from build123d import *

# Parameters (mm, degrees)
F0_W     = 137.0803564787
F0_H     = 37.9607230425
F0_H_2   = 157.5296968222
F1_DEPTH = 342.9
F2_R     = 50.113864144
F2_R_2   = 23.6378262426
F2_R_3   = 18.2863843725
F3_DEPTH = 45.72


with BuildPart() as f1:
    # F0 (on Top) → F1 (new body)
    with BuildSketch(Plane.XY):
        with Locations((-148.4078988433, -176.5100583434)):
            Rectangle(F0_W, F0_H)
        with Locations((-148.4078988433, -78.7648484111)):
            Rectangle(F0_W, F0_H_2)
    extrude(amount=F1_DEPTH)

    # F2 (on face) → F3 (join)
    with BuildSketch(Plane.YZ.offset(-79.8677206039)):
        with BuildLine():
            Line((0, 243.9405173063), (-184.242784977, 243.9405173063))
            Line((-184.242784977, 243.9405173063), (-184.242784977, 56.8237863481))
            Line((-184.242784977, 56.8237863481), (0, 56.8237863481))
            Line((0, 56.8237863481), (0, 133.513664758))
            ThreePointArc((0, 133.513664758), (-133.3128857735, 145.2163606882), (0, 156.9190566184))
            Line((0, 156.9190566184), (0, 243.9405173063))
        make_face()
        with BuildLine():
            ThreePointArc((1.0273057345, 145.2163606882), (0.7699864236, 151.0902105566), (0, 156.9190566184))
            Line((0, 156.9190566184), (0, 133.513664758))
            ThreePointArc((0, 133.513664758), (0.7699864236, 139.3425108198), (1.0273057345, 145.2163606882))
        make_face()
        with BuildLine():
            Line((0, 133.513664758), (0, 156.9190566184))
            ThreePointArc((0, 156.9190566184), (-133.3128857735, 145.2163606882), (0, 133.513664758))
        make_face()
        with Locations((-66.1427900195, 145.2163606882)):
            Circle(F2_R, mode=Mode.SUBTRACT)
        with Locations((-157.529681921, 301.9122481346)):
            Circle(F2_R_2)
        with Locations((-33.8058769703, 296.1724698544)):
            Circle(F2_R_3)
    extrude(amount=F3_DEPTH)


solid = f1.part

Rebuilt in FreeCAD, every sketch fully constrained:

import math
import FreeCAD as App
import Part
import Sketcher

V = App.Vector

doc = App.newDocument("Part")
params = doc.addObject("Spreadsheet::Sheet", "Params")
for row, (alias, value) in enumerate([
    ("pad1_length", "13.5 in"),
    ("pad2_length", "1.8 in"),
], start=1):
    params.set(f"A{row}", alias)
    params.set(f"B{row}", "=" + value)
    params.setAlias(f"B{row}", alias)

body = doc.addObject("PartDesign::Body", "Body")

# Sketch on XY plane
sketch1 = body.newObject("Sketcher::SketchObject", "Sketch")
sketch1.AttachmentSupport = (doc.getObject("XY_Plane"), [""])
sketch1.MapMode = "FlatFace"
sketch1.addGeometry([
    Part.LineSegment(V(-217, -195, 0), V(-80, -195, 0)),
    Part.LineSegment(V(-80, -195, 0), V(-80, 0, 0)),
    Part.LineSegment(V(-80, 0, 0), V(-217, 0, 0)),
    Part.LineSegment(V(-217, 0, 0), V(-217, -195, 0)),
], False)
sketch1.addConstraint([
    Sketcher.Constraint("Coincident", 0, 2, 1, 1),
    Sketcher.Constraint("Coincident", 1, 2, 2, 1),
    Sketcher.Constraint("Coincident", 2, 2, 3, 1),
    Sketcher.Constraint("Coincident", 3, 2, 0, 1),
    Sketcher.Constraint("Horizontal", 0),
    Sketcher.Constraint("Vertical", 1),
    Sketcher.Constraint("Horizontal", 2),
    Sketcher.Constraint("Vertical", 3),
    Sketcher.Constraint("PointOnObject", 1, 2, -1),
    Sketcher.Constraint("DistanceY", 1, 1, 1, 2, 195.49042),
    Sketcher.Constraint("DistanceX", 0, 1, 0, 2, 137.080356),
    Sketcher.Constraint("DistanceX", 0, 2, -1, 1, 79.867721),
])
pad1 = body.newObject("PartDesign::Pad", "Pad")
pad1.Profile = sketch1
pad1.setExpression("Length", "Params.pad1_length")

# Sketch on YZ plane
sketch2 = body.newObject("Sketcher::SketchObject", "Sketch001")
sketch2.AttachmentSupport = (doc.getObject("YZ_Plane"), [""])
sketch2.MapMode = "FlatFace"
sketch2.AttachmentOffset = App.Placement(V(0, 0, -79.867721), App.Rotation())
sketch2.addGeometry([
    Part.LineSegment(V(0, 244, 0), V(-184, 244, 0)),  # 0
    Part.LineSegment(V(-184, 244, 0), V(-184, 57, 0)),  # 1
    Part.LineSegment(V(-184, 57, 0), V(0, 57, 0)),  # 2
    Part.LineSegment(V(0, 57, 0), V(0, 134, 0)),  # 3
    Part.ArcOfCircle(Part.Circle(V(-66, 145, 0), V(0, 0, 1), 67), math.radians(-10), math.radians(10)),  # 4
    Part.LineSegment(V(0, 157, 0), V(0, 244, 0)),  # 5
    Part.Circle(V(-66, 145, 0), V(0, 0, 1), 50),  # 6
    Part.Circle(V(-158, 302, 0), V(0, 0, 1), 24),  # 7
    Part.Circle(V(-34, 296, 0), V(0, 0, 1), 18),  # 8
], False)
sketch2.addConstraint([
    Sketcher.Constraint("Coincident", 0, 2, 1, 1),
    Sketcher.Constraint("Coincident", 1, 2, 2, 1),
    Sketcher.Constraint("Coincident", 2, 2, 3, 1),
    Sketcher.Constraint("Coincident", 3, 2, 4, 1),
    Sketcher.Constraint("Coincident", 4, 2, 5, 1),
    Sketcher.Constraint("Coincident", 5, 2, 0, 1),
    Sketcher.Constraint("Horizontal", 0),
    Sketcher.Constraint("Vertical", 1),
    Sketcher.Constraint("Horizontal", 2),
    Sketcher.Constraint("Vertical", 3),
    Sketcher.Constraint("Vertical", 5),
    Sketcher.Constraint("Coincident", 6, 3, 4, 3),
    Sketcher.Constraint("PointOnObject", 2, 2, -2),
    Sketcher.Constraint("PointOnObject", 4, 2, -2),
    Sketcher.Constraint("Diameter", 6, 100.227728),
    Sketcher.Constraint("Diameter", 8, 36.572769),
    Sketcher.Constraint("Diameter", 7, 47.275652),
    Sketcher.Constraint("Radius", 4, 67.170096),
    Sketcher.Constraint("DistanceY", 1, 2, 1, 1, 187.116731),
    Sketcher.Constraint("DistanceY", 3, 1, 3, 2, 76.689878),
    Sketcher.Constraint("DistanceY", 5, 1, 5, 2, 87.021461),
    Sketcher.Constraint("DistanceX", 0, 2, 0, 1, 184.242785),
    Sketcher.Constraint("DistanceY", -1, 1, 4, 3, 145.216361),
    Sketcher.Constraint("DistanceX", 7, 3, -1, 1, 157.529682),
    Sketcher.Constraint("DistanceY", -1, 1, 7, 3, 301.912248),
    Sketcher.Constraint("DistanceY", -1, 1, 8, 3, 296.17247),
    Sketcher.Constraint("DistanceX", 0, 2, 8, 3, 150.436908),
])
pad2 = body.newObject("PartDesign::Pad", "Pad001")
pad2.Profile = sketch2
pad2.setExpression("Length", "Params.pad2_length")

doc.recompute()
